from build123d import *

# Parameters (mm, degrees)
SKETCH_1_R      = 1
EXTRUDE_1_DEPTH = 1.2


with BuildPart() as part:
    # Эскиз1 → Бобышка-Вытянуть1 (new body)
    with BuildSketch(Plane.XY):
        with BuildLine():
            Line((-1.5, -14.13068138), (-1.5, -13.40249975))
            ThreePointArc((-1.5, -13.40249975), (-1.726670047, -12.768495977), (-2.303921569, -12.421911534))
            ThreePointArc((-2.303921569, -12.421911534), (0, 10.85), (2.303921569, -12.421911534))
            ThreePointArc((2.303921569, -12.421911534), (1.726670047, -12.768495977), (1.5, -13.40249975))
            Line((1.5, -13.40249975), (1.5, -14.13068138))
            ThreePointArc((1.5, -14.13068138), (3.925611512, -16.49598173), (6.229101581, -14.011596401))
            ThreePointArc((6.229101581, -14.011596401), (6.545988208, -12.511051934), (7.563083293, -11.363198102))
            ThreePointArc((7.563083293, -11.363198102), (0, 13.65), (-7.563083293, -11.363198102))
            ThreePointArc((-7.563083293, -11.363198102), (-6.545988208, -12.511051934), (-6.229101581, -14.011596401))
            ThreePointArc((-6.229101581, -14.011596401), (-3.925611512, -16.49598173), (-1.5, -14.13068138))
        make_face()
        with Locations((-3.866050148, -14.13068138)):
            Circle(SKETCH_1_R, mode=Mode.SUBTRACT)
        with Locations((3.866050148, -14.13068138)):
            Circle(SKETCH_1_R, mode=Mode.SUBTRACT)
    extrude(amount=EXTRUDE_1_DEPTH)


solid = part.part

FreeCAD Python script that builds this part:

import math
import FreeCAD as App
import Part
import Sketcher
Q = App.Units.Quantity

doc = App.newDocument("Part")
body = doc.addObject("PartDesign::Body", "Body")

sketch1 = doc.addObject("Sketcher::SketchObject", "Sketch")
body.addObject(sketch1)
sketch1.AttachmentSupport = (doc.XY_Plane, [""])
sketch1.MapMode = "FlatFace"
sketch1.addGeometry(Part.LineSegment(App.Vector(-1.5, -14.1, 0), App.Vector(-1.5, -13.4, 0)), False)
sketch1.addGeometry(Part.ArcOfCircle(Part.Circle(App.Vector(-2.5, -13.4, 0), App.Vector(0, 0, 1), 1), math.radians(0), math.radians(79)), False)
sketch1.addGeometry(Part.ArcOfCircle(Part.Circle(App.Vector(0, -0.9, 0), App.Vector(0, 0, 1), 11.8), math.radians(-79), math.radians(259)), False)
sketch1.addGeometry(Part.ArcOfCircle(Part.Circle(App.Vector(2.5, -13.4, 0), App.Vector(0, 0, 1), 1), math.radians(101), math.radians(180)), False)
sketch1.addGeometry(Part.LineSegment(App.Vector(1.5, -13.4, 0), App.Vector(1.5, -14.1, 0)), False)
sketch1.addGeometry(Part.ArcOfCircle(Part.Circle(App.Vector(3.9, -14.1, 0), App.Vector(0, 0, 1), 2.4), math.radians(-180), math.radians(3)), False)
sketch1.addGeometry(Part.ArcOfCircle(Part.Circle(App.Vector(9.2, -13.9, 0), App.Vector(0, 0, 1), 3), math.radians(124), math.radians(183)), False)
sketch1.addGeometry(Part.ArcOfCircle(Part.Circle(App.Vector(0, 0, 0), App.Vector(0, 0, 1), 13.7), math.radians(-56), math.radians(236)), False)
sketch1.addGeometry(Part.ArcOfCircle(Part.Circle(App.Vector(-9.2, -13.9, 0), App.Vector(0, 0, 1), 3), math.radians(-3), math.radians(56)), False)
sketch1.addGeometry(Part.ArcOfCircle(Part.Circle(App.Vector(-3.9, -14.1, 0), App.Vector(0, 0, 1), 2.4), math.radians(177), math.radians(360)), False)
sketch1.addGeometry(Part.Circle(App.Vector(-3.9, -14.1, 0), App.Vector(0, 0, 1), 1), False)
sketch1.addGeometry(Part.Circle(App.Vector(3.9, -14.1, 0), App.Vector(0, 0, 1), 1), False)
sketch1.addConstraint(Sketcher.Constraint("Tangent", 0, 2, 1, 1))
sketch1.addConstraint(Sketcher.Constraint("Tangent", 1, 2, 2, 2))
sketch1.addConstraint(Sketcher.Constraint("Tangent", 2, 1, 3, 1))
sketch1.addConstraint(Sketcher.Constraint("Tangent", 3, 2, 4, 1))
sketch1.addConstraint(Sketcher.Constraint("Tangent", 4, 2, 5, 1))
sketch1.addConstraint(Sketcher.Constraint("Tangent", 5, 2, 6, 2))
sketch1.addConstraint(Sketcher.Constraint("Tangent", 6, 1, 7, 1))
sketch1.addConstraint(Sketcher.Constraint("Tangent", 7, 2, 8, 2))
sketch1.addConstraint(Sketcher.Constraint("Tangent", 8, 1, 9, 1))
sketch1.addConstraint(Sketcher.Constraint("Tangent", 9, 2, 0, 1))
sketch1.addConstraint(Sketcher.Constraint("Vertical", 0))
sketch1.addConstraint(Sketcher.Constraint("Vertical", 4))
sketch1.addConstraint(Sketcher.Constraint("Coincident", 7, 3, -1, 1))
sketch1.addConstraint(Sketcher.Constraint("Coincident", 10, 3, 9, 3))
sketch1.addConstraint(Sketcher.Constraint("Coincident", 11, 3, 5, 3))
sketch1.addConstraint(Sketcher.Constraint("Equal", 1, 3))
sketch1.addConstraint(Sketcher.Constraint("Equal", 6, 8))
sketch1.addConstraint(Sketcher.Constraint("Equal", 5, 9))
sketch1.addConstraint(Sketcher.Constraint("Equal", 3, 10))
sketch1.addConstraint(Sketcher.Constraint("Equal", 10, 11))
sketch1.addConstraint(Sketcher.Constraint("Symmetric", 1, 3, 3, 3, -2))
sketch1.addConstraint(Sketcher.Constraint("Horizontal", 6, 3, 8, 3))
sketch1.addConstraint(Sketcher.Constraint("Diameter", 10, Q("2 mm")))
sketch1.addConstraint(Sketcher.Constraint("Radius", 6, Q("3 mm")))
sketch1.addConstraint(Sketcher.Constraint("Radius", 2, Q("11.75 mm")))
sketch1.addConstraint(Sketcher.Constraint("Radius", 7, Q("13.65 mm")))
sketch1.addConstraint(Sketcher.Constraint("DistanceX", 1, 3, 3, 3, Q("5 mm")))
sketch1.addConstraint(Sketcher.Constraint("DistanceY", 2, 3, -1, 1, Q("0.9 mm")))
sketch1.addConstraint(Sketcher.Constraint("Radius", 5, Q("2.36605 mm")))
sketch1.addConstraint(Sketcher.Constraint("DistanceY", 0, 1, 0, 2, Q("0.728182 mm")))
pad1 = doc.addObject("PartDesign::Pad", "Pad")
body.addObject(pad1)
pad1.Profile = sketch1
pad1.Length = 1.2

doc.recompute()
